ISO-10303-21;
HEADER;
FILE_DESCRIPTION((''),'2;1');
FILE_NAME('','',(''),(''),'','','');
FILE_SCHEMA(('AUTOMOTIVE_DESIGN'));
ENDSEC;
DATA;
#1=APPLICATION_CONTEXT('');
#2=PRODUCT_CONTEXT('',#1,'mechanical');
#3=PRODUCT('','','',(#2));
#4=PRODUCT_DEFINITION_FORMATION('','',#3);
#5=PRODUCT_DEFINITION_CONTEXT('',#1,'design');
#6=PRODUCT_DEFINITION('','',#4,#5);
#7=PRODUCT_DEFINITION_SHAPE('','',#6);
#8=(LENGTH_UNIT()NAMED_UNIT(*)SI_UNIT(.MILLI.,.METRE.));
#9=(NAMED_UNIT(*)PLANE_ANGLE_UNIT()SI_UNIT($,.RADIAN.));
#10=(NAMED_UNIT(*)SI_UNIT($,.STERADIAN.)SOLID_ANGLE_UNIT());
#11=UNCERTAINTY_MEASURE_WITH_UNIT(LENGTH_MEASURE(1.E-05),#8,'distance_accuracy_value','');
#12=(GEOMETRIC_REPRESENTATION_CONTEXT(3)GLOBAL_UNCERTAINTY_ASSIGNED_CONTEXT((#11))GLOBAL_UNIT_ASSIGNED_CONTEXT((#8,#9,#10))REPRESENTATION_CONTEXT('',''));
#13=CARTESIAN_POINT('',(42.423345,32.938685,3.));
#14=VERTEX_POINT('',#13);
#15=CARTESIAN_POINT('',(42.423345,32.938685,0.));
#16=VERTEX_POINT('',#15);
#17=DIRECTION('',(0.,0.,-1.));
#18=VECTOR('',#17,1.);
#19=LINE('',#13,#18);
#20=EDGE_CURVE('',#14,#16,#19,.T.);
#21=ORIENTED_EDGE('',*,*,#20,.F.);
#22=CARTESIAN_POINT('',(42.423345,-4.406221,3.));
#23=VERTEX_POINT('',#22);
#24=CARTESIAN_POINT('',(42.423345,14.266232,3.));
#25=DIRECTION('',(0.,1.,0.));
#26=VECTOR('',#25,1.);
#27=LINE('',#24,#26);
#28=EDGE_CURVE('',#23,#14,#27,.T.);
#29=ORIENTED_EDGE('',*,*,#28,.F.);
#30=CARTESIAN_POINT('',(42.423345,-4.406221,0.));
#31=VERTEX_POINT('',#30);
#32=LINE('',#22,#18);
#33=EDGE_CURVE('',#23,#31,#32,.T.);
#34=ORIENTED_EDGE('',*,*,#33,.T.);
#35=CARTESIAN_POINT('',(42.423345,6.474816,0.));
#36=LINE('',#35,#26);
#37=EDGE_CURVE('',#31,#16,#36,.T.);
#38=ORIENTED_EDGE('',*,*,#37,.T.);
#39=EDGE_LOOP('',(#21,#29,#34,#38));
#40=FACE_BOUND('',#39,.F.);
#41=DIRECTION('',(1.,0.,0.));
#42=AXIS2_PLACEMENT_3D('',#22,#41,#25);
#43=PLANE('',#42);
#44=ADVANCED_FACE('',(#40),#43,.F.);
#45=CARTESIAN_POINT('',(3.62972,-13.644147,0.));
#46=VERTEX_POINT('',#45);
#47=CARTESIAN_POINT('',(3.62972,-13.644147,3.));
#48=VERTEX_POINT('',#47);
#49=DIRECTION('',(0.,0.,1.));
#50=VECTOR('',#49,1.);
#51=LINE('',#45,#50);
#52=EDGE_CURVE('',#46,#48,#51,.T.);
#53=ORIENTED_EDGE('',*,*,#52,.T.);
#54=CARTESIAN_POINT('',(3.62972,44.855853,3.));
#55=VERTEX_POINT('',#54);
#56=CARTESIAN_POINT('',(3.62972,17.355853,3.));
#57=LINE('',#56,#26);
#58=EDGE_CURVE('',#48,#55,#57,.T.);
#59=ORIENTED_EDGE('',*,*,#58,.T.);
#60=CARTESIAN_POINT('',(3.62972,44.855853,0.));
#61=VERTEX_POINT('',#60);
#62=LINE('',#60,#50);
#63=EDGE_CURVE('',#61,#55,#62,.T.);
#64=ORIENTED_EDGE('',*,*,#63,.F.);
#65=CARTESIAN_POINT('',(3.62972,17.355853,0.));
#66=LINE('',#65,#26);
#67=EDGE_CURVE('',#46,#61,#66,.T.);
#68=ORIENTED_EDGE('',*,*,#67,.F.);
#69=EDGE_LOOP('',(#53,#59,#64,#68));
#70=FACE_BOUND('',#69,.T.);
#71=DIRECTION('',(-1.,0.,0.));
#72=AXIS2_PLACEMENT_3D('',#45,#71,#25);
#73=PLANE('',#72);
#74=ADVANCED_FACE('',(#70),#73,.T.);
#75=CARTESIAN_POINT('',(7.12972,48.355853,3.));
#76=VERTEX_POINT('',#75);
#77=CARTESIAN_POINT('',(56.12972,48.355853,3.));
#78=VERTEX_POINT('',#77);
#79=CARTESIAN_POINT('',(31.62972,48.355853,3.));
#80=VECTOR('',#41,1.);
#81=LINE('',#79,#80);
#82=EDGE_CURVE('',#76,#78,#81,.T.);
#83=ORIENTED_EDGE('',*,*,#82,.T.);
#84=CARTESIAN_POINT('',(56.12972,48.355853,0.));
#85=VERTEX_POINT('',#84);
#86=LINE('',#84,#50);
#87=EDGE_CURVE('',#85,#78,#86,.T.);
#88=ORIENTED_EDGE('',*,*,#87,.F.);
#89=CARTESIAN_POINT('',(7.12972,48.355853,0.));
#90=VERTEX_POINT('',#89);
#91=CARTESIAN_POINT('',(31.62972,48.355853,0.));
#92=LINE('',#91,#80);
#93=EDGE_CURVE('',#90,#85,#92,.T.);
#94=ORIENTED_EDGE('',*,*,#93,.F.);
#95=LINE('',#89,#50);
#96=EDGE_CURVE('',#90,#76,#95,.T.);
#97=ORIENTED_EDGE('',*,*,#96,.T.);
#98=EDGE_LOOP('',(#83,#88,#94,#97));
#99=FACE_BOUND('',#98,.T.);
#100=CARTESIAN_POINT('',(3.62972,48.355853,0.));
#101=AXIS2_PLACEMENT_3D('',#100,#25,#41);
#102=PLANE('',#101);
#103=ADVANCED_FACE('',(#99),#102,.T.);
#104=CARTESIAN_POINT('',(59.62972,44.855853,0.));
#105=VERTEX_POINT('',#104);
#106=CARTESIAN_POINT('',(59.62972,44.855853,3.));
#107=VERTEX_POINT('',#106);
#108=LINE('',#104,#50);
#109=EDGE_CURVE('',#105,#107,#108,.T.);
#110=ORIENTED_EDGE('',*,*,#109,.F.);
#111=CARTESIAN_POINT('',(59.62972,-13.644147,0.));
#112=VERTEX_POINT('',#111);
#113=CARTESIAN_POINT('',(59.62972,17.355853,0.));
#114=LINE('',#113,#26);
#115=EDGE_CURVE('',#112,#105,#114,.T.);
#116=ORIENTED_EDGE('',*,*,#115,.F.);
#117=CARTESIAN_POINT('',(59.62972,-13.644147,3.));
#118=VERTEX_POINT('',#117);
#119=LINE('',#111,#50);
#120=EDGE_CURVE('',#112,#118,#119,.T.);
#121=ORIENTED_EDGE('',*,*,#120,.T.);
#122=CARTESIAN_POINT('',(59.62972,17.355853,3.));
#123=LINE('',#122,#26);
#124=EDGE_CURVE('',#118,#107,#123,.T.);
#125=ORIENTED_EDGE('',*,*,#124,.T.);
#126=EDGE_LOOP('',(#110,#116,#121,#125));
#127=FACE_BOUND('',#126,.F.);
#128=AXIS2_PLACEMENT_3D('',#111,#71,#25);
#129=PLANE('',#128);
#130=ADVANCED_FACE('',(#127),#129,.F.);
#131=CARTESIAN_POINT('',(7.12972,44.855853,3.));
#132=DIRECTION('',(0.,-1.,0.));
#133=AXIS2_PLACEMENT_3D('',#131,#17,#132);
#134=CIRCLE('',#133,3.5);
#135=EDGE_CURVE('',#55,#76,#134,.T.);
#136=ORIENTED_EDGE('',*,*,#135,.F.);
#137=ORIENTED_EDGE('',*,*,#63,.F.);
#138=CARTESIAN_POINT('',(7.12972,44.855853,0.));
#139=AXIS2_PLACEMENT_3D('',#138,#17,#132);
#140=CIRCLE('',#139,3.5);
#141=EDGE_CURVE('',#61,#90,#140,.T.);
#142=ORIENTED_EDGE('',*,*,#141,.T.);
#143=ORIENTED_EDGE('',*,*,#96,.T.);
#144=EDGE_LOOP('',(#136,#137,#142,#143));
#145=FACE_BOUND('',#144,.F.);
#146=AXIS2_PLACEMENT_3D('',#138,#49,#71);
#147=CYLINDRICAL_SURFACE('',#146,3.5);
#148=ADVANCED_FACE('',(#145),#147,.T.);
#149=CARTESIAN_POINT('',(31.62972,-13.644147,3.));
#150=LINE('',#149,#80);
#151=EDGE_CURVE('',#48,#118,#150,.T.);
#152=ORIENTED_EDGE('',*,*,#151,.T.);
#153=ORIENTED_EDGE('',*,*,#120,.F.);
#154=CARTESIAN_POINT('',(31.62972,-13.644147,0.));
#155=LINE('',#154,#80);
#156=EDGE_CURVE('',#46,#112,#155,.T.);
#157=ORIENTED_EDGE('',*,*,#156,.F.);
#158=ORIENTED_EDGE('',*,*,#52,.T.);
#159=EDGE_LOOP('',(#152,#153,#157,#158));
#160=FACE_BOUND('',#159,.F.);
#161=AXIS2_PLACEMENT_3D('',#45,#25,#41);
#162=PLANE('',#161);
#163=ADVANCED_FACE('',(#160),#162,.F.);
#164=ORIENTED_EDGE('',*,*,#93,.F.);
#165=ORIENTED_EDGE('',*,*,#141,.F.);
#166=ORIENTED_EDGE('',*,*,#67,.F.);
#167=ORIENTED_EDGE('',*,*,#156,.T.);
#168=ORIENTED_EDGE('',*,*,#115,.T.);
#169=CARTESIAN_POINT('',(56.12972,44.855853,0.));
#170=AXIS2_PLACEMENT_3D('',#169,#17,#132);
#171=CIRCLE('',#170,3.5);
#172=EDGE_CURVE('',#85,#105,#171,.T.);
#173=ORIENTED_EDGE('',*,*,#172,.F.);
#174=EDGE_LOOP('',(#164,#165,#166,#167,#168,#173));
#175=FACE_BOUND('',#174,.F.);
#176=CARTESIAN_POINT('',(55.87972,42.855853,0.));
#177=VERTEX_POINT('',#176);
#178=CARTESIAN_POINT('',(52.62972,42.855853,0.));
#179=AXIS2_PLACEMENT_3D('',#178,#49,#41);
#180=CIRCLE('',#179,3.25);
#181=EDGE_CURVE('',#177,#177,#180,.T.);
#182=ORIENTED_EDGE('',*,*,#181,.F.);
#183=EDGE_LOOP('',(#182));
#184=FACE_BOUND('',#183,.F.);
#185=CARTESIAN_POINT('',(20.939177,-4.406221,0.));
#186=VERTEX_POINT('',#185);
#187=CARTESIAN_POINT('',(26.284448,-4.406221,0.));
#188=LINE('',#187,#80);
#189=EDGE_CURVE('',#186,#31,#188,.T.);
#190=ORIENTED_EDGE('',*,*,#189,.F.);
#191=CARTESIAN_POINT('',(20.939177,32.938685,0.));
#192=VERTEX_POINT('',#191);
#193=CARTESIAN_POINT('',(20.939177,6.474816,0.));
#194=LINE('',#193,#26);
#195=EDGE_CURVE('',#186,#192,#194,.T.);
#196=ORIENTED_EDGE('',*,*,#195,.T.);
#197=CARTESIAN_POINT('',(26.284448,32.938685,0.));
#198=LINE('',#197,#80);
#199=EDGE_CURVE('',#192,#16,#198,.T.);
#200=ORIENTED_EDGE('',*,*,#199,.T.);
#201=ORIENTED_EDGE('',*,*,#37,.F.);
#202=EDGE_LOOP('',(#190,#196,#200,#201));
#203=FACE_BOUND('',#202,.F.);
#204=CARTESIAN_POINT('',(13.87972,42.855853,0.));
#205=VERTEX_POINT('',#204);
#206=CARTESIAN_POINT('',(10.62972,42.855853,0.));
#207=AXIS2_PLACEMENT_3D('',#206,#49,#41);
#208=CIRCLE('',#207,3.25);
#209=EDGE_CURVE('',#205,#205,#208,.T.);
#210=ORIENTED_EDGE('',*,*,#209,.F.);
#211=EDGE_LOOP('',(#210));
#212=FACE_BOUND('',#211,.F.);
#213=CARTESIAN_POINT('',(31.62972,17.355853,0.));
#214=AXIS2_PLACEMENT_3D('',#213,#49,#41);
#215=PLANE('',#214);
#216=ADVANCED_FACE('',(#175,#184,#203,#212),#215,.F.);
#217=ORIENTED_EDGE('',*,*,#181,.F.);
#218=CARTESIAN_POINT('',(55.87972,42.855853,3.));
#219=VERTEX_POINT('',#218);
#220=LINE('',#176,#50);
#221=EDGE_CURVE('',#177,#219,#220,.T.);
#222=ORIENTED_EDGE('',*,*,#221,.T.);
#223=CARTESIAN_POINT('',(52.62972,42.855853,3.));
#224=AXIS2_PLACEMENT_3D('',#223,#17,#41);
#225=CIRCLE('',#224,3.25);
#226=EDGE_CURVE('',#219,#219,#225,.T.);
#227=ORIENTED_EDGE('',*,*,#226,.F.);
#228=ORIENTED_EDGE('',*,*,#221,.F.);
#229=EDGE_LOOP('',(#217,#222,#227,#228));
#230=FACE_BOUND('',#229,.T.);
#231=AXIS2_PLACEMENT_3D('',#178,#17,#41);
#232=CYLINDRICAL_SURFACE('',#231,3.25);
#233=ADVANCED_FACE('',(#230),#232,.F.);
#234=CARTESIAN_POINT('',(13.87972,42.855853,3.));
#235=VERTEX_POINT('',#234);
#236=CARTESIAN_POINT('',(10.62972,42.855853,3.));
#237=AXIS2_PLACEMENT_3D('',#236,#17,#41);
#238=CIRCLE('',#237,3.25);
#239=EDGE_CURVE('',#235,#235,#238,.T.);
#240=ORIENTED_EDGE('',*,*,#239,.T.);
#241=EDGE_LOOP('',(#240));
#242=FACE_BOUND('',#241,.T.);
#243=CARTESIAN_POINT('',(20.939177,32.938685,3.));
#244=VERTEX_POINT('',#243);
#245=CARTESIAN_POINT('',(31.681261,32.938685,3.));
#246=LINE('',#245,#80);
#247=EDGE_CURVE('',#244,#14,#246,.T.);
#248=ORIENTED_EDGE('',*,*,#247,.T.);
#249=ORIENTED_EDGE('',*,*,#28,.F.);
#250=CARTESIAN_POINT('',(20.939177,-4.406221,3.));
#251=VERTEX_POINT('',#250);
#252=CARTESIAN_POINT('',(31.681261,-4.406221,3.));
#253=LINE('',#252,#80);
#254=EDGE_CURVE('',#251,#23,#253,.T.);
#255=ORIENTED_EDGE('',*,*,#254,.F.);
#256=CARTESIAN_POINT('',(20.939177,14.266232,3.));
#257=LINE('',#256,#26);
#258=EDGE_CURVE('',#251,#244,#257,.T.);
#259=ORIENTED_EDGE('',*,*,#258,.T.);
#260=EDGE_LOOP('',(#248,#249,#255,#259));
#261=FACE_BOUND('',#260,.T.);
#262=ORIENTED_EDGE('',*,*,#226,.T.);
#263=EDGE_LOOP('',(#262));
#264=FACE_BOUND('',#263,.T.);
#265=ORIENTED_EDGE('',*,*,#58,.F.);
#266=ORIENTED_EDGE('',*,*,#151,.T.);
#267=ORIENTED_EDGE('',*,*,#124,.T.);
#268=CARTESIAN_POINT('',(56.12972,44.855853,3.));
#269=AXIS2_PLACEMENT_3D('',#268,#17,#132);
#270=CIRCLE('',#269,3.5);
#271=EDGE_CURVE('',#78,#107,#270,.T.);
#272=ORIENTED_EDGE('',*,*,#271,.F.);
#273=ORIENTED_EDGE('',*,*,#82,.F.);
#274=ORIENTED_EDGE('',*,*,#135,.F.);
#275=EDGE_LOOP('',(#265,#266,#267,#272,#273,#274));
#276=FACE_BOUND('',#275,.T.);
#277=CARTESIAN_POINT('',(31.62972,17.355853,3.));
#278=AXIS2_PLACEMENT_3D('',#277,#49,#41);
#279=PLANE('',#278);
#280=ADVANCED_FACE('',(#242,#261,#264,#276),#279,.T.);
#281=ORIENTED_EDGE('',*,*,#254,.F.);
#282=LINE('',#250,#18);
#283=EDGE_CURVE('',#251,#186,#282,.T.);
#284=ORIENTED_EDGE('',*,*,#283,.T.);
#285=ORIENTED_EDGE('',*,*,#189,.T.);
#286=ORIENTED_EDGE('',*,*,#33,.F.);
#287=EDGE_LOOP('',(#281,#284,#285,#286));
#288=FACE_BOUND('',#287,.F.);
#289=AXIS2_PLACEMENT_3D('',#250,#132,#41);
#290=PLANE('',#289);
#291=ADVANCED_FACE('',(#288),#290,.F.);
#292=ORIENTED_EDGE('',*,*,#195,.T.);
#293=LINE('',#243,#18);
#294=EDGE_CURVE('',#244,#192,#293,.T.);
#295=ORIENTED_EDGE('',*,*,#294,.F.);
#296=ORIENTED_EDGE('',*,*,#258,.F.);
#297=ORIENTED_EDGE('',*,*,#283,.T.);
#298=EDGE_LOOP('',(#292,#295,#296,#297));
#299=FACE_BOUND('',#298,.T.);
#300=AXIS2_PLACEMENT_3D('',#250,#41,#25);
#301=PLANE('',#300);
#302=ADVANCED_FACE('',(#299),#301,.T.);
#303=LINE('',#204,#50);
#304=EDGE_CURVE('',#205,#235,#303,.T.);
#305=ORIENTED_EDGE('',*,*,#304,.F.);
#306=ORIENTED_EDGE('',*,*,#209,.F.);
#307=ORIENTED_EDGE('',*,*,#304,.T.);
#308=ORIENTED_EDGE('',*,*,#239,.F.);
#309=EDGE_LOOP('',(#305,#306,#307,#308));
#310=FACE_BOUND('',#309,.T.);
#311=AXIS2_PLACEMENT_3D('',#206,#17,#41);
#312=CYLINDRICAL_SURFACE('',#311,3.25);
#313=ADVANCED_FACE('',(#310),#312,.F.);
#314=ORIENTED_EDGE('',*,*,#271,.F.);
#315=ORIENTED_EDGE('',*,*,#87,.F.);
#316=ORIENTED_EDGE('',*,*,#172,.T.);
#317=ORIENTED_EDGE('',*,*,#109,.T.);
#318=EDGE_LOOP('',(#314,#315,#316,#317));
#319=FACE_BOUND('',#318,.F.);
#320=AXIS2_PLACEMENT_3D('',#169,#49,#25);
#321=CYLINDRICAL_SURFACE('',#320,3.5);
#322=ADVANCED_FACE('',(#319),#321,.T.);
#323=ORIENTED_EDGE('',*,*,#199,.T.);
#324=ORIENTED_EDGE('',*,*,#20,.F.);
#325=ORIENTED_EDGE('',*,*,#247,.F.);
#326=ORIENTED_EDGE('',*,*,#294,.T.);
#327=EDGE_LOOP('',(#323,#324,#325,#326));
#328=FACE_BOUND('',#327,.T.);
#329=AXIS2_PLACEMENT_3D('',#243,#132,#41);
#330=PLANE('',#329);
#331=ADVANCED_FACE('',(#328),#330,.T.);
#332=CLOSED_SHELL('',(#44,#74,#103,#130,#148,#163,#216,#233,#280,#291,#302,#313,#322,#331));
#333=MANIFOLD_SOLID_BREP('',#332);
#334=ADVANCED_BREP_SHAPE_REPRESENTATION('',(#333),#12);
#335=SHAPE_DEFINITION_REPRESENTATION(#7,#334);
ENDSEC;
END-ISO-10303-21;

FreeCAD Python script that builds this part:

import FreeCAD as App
import Part
import Sketcher

V = App.Vector
Q = App.Units.Quantity


def edges_at(feature, points):
    """Names of the edges that pass closest to the given points."""
    edges = feature.Shape.Edges
    near = lambda p: min(range(len(edges)), key=lambda i: edges[i].distToShape(Part.Vertex(*p))[0])
    return sorted({f"Edge{near(p) + 1}" for p in points})

doc = App.newDocument("Part")
body = doc.addObject("PartDesign::Body", "Body")

# Sketch on XY plane
sketch1 = body.newObject("Sketcher::SketchObject", "Sketch")
sketch1.AttachmentSupport = (doc.getObject("XY_Plane"), [""])
sketch1.MapMode = "FlatFace"
sketch1.addGeometry(Part.LineSegment(V(3.62972, 48.355853, 0), V(3.62972, -13.644147, 0)), False)
sketch1.addGeometry(Part.LineSegment(V(3.62972, -13.644147, 0), V(59.62972, -13.644147, 0)), False)
sketch1.addGeometry(Part.LineSegment(V(59.62972, -13.644147, 0), V(59.62972, 48.355853, 0)), False)
sketch1.addGeometry(Part.LineSegment(V(59.62972, 48.355853, 0), V(3.62972, 48.355853, 0)), False)
sketch1.addConstraint(Sketcher.Constraint("Coincident", 0, 2, 1, 1))
sketch1.addConstraint(Sketcher.Constraint("Coincident", 1, 2, 2, 1))
sketch1.addConstraint(Sketcher.Constraint("Coincident", 2, 2, 3, 1))
sketch1.addConstraint(Sketcher.Constraint("Coincident", 3, 2, 0, 1))
sketch1.addConstraint(Sketcher.Constraint("Vertical", 0))
sketch1.addConstraint(Sketcher.Constraint("Horizontal", 1))
sketch1.addConstraint(Sketcher.Constraint("Vertical", 2))
sketch1.addConstraint(Sketcher.Constraint("Horizontal", 3))
sketch1.addConstraint(Sketcher.Constraint("DistanceX", 1, 1, 1, 2, Q("56 mm")))
sketch1.addConstraint(Sketcher.Constraint("DistanceY", 0, 2, 0, 1, Q("62 mm")))
sketch1.addConstraint(Sketcher.Constraint("DistanceX", -1, 1, 0, 2, Q("3.62972 mm")))
sketch1.addConstraint(Sketcher.Constraint("DistanceY", 0, 2, -1, 1, Q("13.644147 mm")))
pad1 = body.newObject("PartDesign::Pad", "Pad")
pad1.Profile = sketch1
pad1.Length = 3

# Sketch on XY plane
sketch2 = body.newObject("Sketcher::SketchObject", "Sketch001")
sketch2.AttachmentSupport = (doc.getObject("XY_Plane"), [""])
sketch2.MapMode = "FlatFace"
sketch2.addGeometry(Part.Circle(V(52.62972, 42.855853, 0), V(0, 0, 1), 3.25), False)
sketch2.addGeometry(Part.Circle(V(10.62972, 42.855853, 0), V(0, 0, 1), 3.25), False)
sketch2.addConstraint(Sketcher.Constraint("Equal", 0, 1))
sketch2.addConstraint(Sketcher.Constraint("Horizontal", 0, 3, 1, 3))
sketch2.addConstraint(Sketcher.Constraint("Diameter", 0, Q("6.5 mm")))
sketch2.addConstraint(Sketcher.Constraint("DistanceX", 1, 3, 0, 3, Q("42 mm")))
sketch2.addConstraint(Sketcher.Constraint("DistanceX", -1, 1, 0, 3, Q("52.62972 mm")))
sketch2.addConstraint(Sketcher.Constraint("DistanceY", -1, 1, 0, 3, Q("42.855853 mm")))
pocket1 = body.newObject("PartDesign::Pocket", "Pocket")
pocket1.Profile = sketch2
pocket1.Length = 3.5
pocket1.Reversed = True
doc.recompute()

fillet = body.newObject("PartDesign::Fillet", "Fillet")
fillet.Base = (pocket1, edges_at(pocket1, [(3.63, 48.356, 1.5), (59.63, 48.356, 1.5)]))
fillet.Radius = 3.5

# Sketch on XY plane
sketch3 = body.newObject("Sketcher::SketchObject", "Sketch002")
sketch3.AttachmentSupport = (doc.getObject("XY_Plane"), [""])
sketch3.MapMode = "FlatFace"
sketch3.AttachmentOffset = App.Placement(V(0, 0, 3), App.Rotation())
sketch3.addGeometry(Part.LineSegment(V(20.939177, 32.938685, 0), V(20.939177, -4.406221, 0)), False)
sketch3.addGeometry(Part.LineSegment(V(20.939177, -4.406221, 0), V(42.423345, -4.406221, 0)), False)
sketch3.addGeometry(Part.LineSegment(V(42.423345, -4.406221, 0), V(42.423345, 32.938685, 0)), False)
sketch3.addGeometry(Part.LineSegment(V(42.423345, 32.938685, 0), V(20.939177, 32.938685, 0)), False)
sketch3.addConstraint(Sketcher.Constraint("Coincident", 0, 2, 1, 1))
sketch3.addConstraint(Sketcher.Constraint("Coincident", 1, 2, 2, 1))
sketch3.addConstraint(Sketcher.Constraint("Coincident", 2, 2, 3, 1))
sketch3.addConstraint(Sketcher.Constraint("Coincident", 3, 2, 0, 1))
sketch3.addConstraint(Sketcher.Constraint("Vertical", 0))
sketch3.addConstraint(Sketcher.Constraint("Horizontal", 1))
sketch3.addConstraint(Sketcher.Constraint("Vertical", 2))
sketch3.addConstraint(Sketcher.Constraint("Horizontal", 3))
sketch3.addConstraint(Sketcher.Constraint("DistanceX", 1, 1, 1, 2, Q("21.484168 mm")))
sketch3.addConstraint(Sketcher.Constraint("DistanceY", 0, 2, 0, 1, Q("37.344906 mm")))
sketch3.addConstraint(Sketcher.Constraint("DistanceY", 0, 2, -1, 1, Q("4.406221 mm")))
sketch3.addConstraint(Sketcher.Constraint("DistanceX", -1, 1, 0, 2, Q("20.939177 mm")))
pocket2 = body.newObject("PartDesign::Pocket", "Pocket001")
pocket2.Profile = sketch3
pocket2.Length = 3.5

doc.recompute()
